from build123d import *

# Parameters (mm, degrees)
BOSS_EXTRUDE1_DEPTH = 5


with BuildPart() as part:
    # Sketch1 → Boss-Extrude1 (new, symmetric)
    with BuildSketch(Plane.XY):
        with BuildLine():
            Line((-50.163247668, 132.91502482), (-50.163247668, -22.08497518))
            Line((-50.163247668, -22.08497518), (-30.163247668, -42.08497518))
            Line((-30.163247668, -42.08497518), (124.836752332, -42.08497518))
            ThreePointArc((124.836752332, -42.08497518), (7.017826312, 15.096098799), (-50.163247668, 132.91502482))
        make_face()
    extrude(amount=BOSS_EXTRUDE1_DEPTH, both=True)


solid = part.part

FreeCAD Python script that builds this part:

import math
import FreeCAD as App
import Part
import Sketcher

V = App.Vector
Q = App.Units.Quantity

doc = App.newDocument("Part")
body = doc.addObject("PartDesign::Body", "Body")

# Sketch on XY plane
sketch1 = body.newObject("Sketcher::SketchObject", "Sketch")
sketch1.AttachmentSupport = (doc.getObject("XY_Plane"), [""])
sketch1.MapMode = "FlatFace"
sketch1.addGeometry([
    Part.LineSegment(V(-50, 133, 0), V(-50, -22, 0)),
    Part.LineSegment(V(-50, -22, 0), V(-30, -42, 0)),
    Part.LineSegment(V(-30, -42, 0), V(125, -42, 0)),
    Part.ArcOfCircle(Part.Circle(V(148, 157, 0), V(0, 0, 1), 200), math.radians(-173), math.radians(-97)),
], False)
sketch1.addConstraint([
    Sketcher.Constraint("Coincident", 0, 2, 1, 1),
    Sketcher.Constraint("Coincident", 1, 2, 2, 1),
    Sketcher.Constraint("Coincident", 2, 2, 3, 2),
    Sketcher.Constraint("Coincident", 3, 1, 0, 1),
    Sketcher.Constraint("Vertical", 0),
    Sketcher.Constraint("Horizontal", 2),
    Sketcher.Constraint("Equal", 2, 0),
    Sketcher.Constraint("Radius", 3, 200.0),
    Sketcher.Constraint("DistanceX", 2, 1, 2, 2, 155.0),
    Sketcher.Constraint("Angle", 1, Q("-45 deg")),
    Sketcher.Constraint("DistanceX", 0, 2, 1, 2, 20.0),
    Sketcher.Constraint("DistanceX", -1, 1, 3, 3, 148.439183),
    Sketcher.Constraint("DistanceY", -1, 1, 3, 3, 156.517455),
])
pad1 = body.newObject("PartDesign::Pad", "Pad")
pad1.Profile = sketch1
pad1.Length = 10
pad1.Midplane = True

doc.recompute()
